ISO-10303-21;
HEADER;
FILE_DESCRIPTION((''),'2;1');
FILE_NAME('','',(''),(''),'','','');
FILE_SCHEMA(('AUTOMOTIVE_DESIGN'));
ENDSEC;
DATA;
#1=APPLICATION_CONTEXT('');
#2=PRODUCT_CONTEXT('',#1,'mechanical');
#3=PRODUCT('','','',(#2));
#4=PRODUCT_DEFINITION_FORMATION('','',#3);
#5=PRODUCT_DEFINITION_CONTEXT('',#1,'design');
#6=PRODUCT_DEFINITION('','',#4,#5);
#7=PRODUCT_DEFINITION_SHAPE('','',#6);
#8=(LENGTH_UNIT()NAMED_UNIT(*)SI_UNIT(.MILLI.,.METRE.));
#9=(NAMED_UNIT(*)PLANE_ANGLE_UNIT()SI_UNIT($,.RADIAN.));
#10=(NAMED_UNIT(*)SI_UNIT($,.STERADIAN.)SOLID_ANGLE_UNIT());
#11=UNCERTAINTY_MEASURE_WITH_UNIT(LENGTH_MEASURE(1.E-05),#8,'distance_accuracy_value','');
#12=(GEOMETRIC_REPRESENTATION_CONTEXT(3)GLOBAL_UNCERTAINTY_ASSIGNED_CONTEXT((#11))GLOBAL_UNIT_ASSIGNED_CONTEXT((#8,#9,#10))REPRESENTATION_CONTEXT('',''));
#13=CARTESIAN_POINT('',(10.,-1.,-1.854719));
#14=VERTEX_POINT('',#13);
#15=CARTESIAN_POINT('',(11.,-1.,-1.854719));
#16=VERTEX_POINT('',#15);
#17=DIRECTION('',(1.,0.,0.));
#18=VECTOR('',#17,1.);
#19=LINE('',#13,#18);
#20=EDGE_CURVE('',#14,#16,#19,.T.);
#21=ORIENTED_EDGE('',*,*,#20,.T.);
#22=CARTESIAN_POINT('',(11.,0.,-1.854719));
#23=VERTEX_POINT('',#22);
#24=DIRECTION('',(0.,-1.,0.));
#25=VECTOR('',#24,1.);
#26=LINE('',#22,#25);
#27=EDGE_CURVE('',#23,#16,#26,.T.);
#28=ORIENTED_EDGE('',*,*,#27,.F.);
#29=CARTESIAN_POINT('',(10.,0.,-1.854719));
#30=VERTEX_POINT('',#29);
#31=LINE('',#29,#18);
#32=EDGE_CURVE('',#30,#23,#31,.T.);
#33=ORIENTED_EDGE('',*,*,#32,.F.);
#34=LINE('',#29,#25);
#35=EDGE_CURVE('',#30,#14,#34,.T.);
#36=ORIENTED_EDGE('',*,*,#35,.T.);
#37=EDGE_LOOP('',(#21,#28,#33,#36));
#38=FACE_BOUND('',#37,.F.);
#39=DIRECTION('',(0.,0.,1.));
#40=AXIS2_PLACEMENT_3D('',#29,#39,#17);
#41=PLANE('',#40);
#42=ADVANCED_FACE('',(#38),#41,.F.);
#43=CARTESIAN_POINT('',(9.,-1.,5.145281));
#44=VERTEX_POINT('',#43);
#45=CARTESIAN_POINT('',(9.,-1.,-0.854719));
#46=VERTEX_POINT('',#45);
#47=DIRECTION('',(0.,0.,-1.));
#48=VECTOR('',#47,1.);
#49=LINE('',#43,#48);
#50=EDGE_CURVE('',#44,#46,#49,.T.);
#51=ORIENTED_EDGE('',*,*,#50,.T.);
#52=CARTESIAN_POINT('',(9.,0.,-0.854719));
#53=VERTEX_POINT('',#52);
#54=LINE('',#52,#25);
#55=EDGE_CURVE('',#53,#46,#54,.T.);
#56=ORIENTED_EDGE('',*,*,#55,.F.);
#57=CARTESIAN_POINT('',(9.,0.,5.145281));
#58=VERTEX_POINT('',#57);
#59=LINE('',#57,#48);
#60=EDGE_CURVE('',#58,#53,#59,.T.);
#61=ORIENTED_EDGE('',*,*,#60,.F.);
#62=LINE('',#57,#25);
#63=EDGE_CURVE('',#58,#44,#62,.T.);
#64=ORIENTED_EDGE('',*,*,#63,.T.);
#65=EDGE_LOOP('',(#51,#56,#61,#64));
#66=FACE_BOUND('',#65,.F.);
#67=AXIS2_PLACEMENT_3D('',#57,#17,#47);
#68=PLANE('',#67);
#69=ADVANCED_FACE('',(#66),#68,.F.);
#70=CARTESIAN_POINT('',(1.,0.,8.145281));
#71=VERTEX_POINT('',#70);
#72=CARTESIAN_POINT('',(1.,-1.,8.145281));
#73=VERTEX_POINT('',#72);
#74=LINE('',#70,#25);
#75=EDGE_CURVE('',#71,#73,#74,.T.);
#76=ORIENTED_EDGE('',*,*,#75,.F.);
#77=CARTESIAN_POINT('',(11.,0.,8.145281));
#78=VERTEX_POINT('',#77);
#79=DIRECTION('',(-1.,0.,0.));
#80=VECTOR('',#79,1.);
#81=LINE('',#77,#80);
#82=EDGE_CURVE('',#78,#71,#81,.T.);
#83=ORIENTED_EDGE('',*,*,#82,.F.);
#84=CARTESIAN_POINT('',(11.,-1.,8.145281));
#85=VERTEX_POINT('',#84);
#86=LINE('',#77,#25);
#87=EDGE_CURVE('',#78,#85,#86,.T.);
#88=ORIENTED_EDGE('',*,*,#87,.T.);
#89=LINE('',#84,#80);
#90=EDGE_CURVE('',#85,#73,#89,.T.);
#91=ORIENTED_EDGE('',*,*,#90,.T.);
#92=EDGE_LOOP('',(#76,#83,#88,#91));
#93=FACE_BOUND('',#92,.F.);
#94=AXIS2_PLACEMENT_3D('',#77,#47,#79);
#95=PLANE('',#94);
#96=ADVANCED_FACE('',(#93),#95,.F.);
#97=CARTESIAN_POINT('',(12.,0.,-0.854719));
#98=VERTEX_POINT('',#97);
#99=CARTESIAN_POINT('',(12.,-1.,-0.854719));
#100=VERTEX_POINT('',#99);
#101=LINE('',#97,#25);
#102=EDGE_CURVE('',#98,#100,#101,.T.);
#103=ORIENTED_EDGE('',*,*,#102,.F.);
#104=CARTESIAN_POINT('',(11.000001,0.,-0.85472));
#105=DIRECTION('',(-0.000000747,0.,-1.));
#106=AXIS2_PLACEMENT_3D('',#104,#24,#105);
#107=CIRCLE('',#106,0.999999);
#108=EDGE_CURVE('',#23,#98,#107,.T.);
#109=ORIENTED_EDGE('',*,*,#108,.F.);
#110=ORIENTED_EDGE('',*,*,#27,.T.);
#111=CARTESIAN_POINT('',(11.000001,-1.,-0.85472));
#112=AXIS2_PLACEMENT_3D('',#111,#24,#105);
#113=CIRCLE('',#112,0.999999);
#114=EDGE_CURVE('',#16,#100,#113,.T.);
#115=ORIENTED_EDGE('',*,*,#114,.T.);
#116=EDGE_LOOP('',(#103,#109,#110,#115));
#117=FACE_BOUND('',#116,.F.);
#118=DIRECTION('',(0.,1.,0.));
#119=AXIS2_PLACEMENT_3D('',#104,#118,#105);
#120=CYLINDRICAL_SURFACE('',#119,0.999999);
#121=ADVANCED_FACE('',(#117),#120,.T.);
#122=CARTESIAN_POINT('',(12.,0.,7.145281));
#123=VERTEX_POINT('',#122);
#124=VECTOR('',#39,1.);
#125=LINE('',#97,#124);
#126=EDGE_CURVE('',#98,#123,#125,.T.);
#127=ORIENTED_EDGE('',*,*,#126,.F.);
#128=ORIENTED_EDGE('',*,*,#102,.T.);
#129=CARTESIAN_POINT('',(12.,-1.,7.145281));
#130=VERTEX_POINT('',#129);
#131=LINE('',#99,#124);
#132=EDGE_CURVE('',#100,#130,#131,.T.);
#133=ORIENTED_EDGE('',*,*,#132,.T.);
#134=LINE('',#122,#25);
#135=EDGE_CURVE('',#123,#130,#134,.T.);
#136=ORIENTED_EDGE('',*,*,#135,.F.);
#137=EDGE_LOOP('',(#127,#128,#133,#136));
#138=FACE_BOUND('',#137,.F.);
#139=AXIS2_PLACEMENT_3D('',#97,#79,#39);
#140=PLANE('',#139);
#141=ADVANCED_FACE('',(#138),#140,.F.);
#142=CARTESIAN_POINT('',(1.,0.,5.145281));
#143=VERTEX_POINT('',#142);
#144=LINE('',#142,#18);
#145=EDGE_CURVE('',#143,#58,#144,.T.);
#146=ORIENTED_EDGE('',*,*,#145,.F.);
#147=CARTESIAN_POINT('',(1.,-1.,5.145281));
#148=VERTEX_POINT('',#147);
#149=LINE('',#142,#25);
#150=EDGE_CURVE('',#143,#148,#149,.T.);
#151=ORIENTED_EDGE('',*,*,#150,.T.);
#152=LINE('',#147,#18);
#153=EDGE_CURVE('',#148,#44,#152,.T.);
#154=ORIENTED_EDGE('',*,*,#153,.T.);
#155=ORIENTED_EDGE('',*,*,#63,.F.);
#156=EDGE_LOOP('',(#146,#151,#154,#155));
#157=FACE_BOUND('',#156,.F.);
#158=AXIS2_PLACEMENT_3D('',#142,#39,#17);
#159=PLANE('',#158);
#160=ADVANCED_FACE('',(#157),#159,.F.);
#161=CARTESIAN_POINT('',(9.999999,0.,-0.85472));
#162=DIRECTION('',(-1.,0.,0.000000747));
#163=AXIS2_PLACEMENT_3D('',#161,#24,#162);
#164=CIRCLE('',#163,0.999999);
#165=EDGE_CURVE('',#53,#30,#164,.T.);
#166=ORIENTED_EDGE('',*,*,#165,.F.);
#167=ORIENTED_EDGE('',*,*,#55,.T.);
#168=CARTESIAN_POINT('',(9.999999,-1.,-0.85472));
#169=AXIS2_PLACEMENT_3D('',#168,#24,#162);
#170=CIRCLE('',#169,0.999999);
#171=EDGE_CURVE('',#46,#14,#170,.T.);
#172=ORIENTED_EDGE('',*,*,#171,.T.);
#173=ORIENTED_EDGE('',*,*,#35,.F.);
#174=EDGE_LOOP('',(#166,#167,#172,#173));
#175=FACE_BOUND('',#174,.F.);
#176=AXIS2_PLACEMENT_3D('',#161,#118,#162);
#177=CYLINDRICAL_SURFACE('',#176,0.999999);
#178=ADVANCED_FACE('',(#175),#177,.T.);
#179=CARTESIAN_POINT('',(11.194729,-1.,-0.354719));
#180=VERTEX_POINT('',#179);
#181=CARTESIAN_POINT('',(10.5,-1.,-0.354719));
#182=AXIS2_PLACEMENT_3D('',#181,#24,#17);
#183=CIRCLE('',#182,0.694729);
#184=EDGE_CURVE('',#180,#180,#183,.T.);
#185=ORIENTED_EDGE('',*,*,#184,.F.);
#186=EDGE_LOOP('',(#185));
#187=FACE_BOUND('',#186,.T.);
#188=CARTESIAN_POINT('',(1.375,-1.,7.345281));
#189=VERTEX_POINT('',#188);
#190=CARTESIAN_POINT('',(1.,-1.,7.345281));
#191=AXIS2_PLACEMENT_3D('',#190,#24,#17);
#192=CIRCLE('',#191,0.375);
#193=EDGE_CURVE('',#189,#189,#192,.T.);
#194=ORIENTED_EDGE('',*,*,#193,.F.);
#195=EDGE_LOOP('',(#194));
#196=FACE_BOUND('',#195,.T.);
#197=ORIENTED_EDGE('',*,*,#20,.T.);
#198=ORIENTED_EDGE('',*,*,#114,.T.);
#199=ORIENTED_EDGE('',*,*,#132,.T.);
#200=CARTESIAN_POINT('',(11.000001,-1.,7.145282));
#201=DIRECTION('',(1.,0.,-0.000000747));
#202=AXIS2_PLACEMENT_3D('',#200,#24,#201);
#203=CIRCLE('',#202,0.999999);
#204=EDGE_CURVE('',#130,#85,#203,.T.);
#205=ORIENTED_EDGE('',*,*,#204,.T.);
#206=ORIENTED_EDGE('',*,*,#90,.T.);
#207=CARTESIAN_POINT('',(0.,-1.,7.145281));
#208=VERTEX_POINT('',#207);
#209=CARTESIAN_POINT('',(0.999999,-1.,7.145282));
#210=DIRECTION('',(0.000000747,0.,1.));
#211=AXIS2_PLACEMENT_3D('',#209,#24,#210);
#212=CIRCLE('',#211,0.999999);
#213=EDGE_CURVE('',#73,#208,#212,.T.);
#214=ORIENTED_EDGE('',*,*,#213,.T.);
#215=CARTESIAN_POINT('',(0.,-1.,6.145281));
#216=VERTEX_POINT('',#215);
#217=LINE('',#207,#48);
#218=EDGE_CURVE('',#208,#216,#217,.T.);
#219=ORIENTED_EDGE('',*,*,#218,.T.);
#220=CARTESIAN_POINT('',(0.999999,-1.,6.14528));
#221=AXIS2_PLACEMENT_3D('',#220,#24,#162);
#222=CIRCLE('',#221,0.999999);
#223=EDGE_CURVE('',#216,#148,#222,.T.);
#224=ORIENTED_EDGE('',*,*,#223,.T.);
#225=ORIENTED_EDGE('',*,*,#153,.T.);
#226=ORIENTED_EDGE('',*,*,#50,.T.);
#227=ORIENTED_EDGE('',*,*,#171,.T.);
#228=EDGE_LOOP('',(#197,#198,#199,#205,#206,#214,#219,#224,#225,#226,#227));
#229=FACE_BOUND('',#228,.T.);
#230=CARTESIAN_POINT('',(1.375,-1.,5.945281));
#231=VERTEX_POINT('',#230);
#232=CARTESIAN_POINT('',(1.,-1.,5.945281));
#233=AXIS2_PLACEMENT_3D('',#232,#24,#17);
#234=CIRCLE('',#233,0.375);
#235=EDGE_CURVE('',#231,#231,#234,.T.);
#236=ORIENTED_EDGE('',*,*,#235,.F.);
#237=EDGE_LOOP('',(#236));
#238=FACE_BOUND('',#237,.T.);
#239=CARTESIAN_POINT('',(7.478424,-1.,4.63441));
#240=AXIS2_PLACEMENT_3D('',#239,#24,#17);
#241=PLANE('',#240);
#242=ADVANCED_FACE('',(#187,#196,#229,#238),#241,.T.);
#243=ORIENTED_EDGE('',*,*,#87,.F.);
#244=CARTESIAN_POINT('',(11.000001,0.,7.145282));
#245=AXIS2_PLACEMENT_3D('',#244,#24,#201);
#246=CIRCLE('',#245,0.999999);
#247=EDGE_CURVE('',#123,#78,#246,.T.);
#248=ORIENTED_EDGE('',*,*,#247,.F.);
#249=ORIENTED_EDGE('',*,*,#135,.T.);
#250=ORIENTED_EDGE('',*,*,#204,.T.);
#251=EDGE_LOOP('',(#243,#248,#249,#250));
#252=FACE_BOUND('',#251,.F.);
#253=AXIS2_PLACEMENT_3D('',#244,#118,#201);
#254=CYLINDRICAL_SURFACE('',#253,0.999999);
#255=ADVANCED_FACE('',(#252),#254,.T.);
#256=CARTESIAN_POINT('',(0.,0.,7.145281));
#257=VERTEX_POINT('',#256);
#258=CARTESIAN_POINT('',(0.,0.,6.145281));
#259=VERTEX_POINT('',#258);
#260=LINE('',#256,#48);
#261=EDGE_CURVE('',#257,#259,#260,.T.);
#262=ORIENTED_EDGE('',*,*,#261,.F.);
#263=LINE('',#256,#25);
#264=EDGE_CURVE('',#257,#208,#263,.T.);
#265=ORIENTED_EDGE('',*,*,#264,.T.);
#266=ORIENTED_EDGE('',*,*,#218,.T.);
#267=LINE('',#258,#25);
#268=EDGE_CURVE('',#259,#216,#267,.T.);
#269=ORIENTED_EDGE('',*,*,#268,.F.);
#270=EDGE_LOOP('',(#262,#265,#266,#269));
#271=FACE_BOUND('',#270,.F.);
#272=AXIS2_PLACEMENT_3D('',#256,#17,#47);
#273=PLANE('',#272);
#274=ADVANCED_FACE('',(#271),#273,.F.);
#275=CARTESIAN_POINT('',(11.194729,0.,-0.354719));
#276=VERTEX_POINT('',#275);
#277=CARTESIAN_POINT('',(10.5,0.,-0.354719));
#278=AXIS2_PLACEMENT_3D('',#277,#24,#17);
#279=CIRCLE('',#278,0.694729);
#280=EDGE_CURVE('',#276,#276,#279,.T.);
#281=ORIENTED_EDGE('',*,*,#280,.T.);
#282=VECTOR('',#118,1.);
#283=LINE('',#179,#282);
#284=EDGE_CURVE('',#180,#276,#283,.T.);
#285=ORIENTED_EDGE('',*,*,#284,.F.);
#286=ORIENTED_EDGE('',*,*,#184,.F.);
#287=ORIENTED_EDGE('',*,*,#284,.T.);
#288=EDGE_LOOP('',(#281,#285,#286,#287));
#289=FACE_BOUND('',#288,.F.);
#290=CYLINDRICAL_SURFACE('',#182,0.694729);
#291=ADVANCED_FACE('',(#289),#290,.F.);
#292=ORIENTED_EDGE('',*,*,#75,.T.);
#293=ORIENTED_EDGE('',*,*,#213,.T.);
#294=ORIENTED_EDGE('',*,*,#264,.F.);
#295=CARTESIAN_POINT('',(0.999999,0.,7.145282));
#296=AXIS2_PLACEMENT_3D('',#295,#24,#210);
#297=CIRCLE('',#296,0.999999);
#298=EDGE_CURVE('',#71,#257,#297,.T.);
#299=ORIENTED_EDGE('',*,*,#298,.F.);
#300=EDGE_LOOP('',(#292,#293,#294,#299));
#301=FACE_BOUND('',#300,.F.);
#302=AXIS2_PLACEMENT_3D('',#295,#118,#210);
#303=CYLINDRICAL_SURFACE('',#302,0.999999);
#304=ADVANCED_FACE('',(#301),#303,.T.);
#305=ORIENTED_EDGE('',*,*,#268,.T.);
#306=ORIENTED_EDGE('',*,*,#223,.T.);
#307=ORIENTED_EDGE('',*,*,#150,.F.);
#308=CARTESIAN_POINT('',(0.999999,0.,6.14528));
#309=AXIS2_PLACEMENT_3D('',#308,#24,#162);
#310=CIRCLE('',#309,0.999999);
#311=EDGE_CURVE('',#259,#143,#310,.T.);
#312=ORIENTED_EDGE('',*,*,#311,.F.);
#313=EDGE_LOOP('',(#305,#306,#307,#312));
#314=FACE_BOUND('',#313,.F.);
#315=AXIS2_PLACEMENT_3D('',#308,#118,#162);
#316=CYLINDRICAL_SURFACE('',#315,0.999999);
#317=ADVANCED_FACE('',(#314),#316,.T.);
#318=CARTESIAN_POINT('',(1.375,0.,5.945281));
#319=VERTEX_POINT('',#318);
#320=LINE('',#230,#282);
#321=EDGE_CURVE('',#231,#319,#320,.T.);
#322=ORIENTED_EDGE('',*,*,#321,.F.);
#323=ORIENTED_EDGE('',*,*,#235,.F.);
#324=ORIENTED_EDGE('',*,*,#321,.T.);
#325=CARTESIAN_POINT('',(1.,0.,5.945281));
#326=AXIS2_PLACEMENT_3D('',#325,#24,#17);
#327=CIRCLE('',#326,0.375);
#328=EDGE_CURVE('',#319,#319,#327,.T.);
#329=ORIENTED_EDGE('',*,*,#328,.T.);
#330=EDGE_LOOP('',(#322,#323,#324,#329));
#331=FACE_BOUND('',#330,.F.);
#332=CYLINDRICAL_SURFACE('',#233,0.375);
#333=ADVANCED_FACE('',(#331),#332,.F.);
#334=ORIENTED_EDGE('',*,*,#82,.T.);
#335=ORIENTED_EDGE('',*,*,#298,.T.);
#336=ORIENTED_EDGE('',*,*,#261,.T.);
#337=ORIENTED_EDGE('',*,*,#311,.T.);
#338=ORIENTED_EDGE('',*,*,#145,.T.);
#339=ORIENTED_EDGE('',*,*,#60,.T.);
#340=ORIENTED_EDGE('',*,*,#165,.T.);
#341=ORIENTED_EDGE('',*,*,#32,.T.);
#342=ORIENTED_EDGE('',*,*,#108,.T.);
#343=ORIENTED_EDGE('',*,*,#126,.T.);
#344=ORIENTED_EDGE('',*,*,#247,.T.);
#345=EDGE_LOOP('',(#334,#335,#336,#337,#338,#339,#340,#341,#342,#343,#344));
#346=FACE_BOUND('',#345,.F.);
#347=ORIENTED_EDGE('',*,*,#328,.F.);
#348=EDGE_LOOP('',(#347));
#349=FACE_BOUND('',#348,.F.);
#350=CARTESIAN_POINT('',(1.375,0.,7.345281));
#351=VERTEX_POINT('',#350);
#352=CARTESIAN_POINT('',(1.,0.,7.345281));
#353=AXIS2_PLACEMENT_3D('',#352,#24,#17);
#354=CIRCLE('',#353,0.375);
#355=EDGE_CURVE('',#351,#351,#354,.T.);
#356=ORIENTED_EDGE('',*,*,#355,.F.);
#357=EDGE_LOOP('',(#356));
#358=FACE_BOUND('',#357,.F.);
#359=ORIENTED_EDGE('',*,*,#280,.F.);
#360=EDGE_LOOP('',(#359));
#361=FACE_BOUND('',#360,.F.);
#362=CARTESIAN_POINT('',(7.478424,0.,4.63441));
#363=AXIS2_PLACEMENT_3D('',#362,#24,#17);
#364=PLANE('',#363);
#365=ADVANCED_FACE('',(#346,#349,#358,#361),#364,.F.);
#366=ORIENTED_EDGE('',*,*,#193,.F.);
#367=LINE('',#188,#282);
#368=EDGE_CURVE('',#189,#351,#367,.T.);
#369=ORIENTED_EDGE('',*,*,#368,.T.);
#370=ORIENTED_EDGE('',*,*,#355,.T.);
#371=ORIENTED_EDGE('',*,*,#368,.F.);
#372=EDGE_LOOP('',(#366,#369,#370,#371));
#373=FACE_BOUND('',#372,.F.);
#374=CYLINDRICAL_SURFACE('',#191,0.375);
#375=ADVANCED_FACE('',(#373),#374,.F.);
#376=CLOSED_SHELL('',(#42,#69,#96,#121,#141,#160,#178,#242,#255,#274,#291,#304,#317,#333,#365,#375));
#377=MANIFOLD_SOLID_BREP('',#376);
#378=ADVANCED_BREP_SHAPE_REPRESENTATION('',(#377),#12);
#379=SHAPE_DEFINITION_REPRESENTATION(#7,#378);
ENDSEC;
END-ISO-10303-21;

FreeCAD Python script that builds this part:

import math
import FreeCAD as App
import Part
import Sketcher

doc = App.newDocument("Part")
body = doc.addObject("PartDesign::Body", "Body")

# Sketch on XZ plane
sketch1 = body.newObject("Sketcher::SketchObject", "Sketch")
sketch1.AttachmentSupport = (doc.getObject("XZ_Plane"), [""])
sketch1.MapMode = "FlatFace"
sketch1.addGeometry([
    Part.ArcOfCircle(Part.Circle(App.Vector(1, 6.1, 0), App.Vector(0, 0, 1), 1), math.radians(180), math.radians(270)),  # 0
    Part.LineSegment(App.Vector(1, 5.1, 0), App.Vector(9, 5.1, 0)),  # 1
    Part.LineSegment(App.Vector(9, 5.1, 0), App.Vector(9, -0.9, 0)),  # 2
    Part.ArcOfCircle(Part.Circle(App.Vector(10, -0.9, 0), App.Vector(0, 0, 1), 1), math.radians(180), math.radians(270)),  # 3
    Part.LineSegment(App.Vector(10, -1.9, 0), App.Vector(11, -1.9, 0)),  # 4
    Part.ArcOfCircle(Part.Circle(App.Vector(11, -0.9, 0), App.Vector(0, 0, 1), 1), math.radians(-90), math.radians(0)),  # 5
    Part.LineSegment(App.Vector(12, -0.9, 0), App.Vector(12, 7.1, 0)),  # 6
    Part.ArcOfCircle(Part.Circle(App.Vector(11, 7.1, 0), App.Vector(0, 0, 1), 1), math.radians(0), math.radians(90)),  # 7
    Part.LineSegment(App.Vector(11, 8.1, 0), App.Vector(1, 8.1, 0)),  # 8
    Part.ArcOfCircle(Part.Circle(App.Vector(1, 7.1, 0), App.Vector(0, 0, 1), 1), math.radians(90), math.radians(180)),  # 9
    Part.LineSegment(App.Vector(0, 7.1, 0), App.Vector(0, 6.1, 0)),  # 10
], False)
sketch1.addConstraint([
    Sketcher.Constraint("Tangent", 0, 2, 1, 1),
    Sketcher.Constraint("Coincident", 1, 2, 2, 1),
    Sketcher.Constraint("Tangent", 2, 2, 3, 1),
    Sketcher.Constraint("Tangent", 3, 2, 4, 1),
    Sketcher.Constraint("Tangent", 4, 2, 5, 1),
    Sketcher.Constraint("Tangent", 5, 2, 6, 1),
    Sketcher.Constraint("Tangent", 6, 2, 7, 1),
    Sketcher.Constraint("Tangent", 7, 2, 8, 1),
    Sketcher.Constraint("Tangent", 8, 2, 9, 1),
    Sketcher.Constraint("Tangent", 9, 2, 10, 1),
    Sketcher.Constraint("Tangent", 10, 2, 0, 1),
    Sketcher.Constraint("Horizontal", 1),
    Sketcher.Constraint("Vertical", 2),
    Sketcher.Constraint("Horizontal", 4),
    Sketcher.Constraint("Vertical", 6),
    Sketcher.Constraint("Horizontal", 8),
    Sketcher.Constraint("Vertical", 10),
    Sketcher.Constraint("Equal", 0, 3),
    Sketcher.Constraint("Equal", 3, 5),
    Sketcher.Constraint("Equal", 5, 7),
    Sketcher.Constraint("Equal", 7, 9),
    Sketcher.Constraint("PointOnObject", 9, 2, -2),
    Sketcher.Constraint("Equal", 1, 6),
    Sketcher.Constraint("Equal", 4, 10),
    Sketcher.Constraint("Radius", 0, 0.999999),
    Sketcher.Constraint("DistanceX", 1, 1, 1, 2, 8.0),
    Sketcher.Constraint("DistanceX", 4, 1, 4, 2, 1.0),
    Sketcher.Constraint("DistanceY", -1, 1, 0, 3, 6.14528),
])
pad1 = body.newObject("PartDesign::Pad", "Pad")
pad1.Profile = sketch1
pad1.Length = 1

# Sketch on XZ plane
sketch2 = body.newObject("Sketcher::SketchObject", "Sketch001")
sketch2.AttachmentSupport = (doc.getObject("XZ_Plane"), [""])
sketch2.MapMode = "FlatFace"
sketch2.AttachmentOffset = App.Placement(App.Vector(0, 0, 1), App.Rotation())
sketch2.addGeometry([
    Part.Circle(App.Vector(1, 7.35, 0), App.Vector(0, 0, 1), 0.38),
    Part.Circle(App.Vector(1, 5.95, 0), App.Vector(0, 0, 1), 0.38),
    Part.Circle(App.Vector(10.5, -0.35, 0), App.Vector(0, 0, 1), 0.69),
], False)
sketch2.addConstraint([
    Sketcher.Constraint("Equal", 0, 1),
    Sketcher.Constraint("Vertical", 0, 3, 1, 3),
    Sketcher.Constraint("Diameter", 0, 0.75),
    Sketcher.Constraint("DistanceX", -1, 1, 0, 3, 1.0),
    Sketcher.Constraint("DistanceX", -1, 1, 2, 3, 10.5),
    Sketcher.Constraint("DistanceY", 1, 3, 0, 3, 1.4),
    Sketcher.Constraint("DistanceY", 2, 3, 1, 3, 6.3),
    Sketcher.Constraint("Diameter", 2, 1.389458),
    Sketcher.Constraint("DistanceY", -1, 1, 0, 3, 7.345281),
])
pocket1 = body.newObject("PartDesign::Pocket", "Pocket")
pocket1.Profile = sketch2
pocket1.Length = 25

doc.recompute()
